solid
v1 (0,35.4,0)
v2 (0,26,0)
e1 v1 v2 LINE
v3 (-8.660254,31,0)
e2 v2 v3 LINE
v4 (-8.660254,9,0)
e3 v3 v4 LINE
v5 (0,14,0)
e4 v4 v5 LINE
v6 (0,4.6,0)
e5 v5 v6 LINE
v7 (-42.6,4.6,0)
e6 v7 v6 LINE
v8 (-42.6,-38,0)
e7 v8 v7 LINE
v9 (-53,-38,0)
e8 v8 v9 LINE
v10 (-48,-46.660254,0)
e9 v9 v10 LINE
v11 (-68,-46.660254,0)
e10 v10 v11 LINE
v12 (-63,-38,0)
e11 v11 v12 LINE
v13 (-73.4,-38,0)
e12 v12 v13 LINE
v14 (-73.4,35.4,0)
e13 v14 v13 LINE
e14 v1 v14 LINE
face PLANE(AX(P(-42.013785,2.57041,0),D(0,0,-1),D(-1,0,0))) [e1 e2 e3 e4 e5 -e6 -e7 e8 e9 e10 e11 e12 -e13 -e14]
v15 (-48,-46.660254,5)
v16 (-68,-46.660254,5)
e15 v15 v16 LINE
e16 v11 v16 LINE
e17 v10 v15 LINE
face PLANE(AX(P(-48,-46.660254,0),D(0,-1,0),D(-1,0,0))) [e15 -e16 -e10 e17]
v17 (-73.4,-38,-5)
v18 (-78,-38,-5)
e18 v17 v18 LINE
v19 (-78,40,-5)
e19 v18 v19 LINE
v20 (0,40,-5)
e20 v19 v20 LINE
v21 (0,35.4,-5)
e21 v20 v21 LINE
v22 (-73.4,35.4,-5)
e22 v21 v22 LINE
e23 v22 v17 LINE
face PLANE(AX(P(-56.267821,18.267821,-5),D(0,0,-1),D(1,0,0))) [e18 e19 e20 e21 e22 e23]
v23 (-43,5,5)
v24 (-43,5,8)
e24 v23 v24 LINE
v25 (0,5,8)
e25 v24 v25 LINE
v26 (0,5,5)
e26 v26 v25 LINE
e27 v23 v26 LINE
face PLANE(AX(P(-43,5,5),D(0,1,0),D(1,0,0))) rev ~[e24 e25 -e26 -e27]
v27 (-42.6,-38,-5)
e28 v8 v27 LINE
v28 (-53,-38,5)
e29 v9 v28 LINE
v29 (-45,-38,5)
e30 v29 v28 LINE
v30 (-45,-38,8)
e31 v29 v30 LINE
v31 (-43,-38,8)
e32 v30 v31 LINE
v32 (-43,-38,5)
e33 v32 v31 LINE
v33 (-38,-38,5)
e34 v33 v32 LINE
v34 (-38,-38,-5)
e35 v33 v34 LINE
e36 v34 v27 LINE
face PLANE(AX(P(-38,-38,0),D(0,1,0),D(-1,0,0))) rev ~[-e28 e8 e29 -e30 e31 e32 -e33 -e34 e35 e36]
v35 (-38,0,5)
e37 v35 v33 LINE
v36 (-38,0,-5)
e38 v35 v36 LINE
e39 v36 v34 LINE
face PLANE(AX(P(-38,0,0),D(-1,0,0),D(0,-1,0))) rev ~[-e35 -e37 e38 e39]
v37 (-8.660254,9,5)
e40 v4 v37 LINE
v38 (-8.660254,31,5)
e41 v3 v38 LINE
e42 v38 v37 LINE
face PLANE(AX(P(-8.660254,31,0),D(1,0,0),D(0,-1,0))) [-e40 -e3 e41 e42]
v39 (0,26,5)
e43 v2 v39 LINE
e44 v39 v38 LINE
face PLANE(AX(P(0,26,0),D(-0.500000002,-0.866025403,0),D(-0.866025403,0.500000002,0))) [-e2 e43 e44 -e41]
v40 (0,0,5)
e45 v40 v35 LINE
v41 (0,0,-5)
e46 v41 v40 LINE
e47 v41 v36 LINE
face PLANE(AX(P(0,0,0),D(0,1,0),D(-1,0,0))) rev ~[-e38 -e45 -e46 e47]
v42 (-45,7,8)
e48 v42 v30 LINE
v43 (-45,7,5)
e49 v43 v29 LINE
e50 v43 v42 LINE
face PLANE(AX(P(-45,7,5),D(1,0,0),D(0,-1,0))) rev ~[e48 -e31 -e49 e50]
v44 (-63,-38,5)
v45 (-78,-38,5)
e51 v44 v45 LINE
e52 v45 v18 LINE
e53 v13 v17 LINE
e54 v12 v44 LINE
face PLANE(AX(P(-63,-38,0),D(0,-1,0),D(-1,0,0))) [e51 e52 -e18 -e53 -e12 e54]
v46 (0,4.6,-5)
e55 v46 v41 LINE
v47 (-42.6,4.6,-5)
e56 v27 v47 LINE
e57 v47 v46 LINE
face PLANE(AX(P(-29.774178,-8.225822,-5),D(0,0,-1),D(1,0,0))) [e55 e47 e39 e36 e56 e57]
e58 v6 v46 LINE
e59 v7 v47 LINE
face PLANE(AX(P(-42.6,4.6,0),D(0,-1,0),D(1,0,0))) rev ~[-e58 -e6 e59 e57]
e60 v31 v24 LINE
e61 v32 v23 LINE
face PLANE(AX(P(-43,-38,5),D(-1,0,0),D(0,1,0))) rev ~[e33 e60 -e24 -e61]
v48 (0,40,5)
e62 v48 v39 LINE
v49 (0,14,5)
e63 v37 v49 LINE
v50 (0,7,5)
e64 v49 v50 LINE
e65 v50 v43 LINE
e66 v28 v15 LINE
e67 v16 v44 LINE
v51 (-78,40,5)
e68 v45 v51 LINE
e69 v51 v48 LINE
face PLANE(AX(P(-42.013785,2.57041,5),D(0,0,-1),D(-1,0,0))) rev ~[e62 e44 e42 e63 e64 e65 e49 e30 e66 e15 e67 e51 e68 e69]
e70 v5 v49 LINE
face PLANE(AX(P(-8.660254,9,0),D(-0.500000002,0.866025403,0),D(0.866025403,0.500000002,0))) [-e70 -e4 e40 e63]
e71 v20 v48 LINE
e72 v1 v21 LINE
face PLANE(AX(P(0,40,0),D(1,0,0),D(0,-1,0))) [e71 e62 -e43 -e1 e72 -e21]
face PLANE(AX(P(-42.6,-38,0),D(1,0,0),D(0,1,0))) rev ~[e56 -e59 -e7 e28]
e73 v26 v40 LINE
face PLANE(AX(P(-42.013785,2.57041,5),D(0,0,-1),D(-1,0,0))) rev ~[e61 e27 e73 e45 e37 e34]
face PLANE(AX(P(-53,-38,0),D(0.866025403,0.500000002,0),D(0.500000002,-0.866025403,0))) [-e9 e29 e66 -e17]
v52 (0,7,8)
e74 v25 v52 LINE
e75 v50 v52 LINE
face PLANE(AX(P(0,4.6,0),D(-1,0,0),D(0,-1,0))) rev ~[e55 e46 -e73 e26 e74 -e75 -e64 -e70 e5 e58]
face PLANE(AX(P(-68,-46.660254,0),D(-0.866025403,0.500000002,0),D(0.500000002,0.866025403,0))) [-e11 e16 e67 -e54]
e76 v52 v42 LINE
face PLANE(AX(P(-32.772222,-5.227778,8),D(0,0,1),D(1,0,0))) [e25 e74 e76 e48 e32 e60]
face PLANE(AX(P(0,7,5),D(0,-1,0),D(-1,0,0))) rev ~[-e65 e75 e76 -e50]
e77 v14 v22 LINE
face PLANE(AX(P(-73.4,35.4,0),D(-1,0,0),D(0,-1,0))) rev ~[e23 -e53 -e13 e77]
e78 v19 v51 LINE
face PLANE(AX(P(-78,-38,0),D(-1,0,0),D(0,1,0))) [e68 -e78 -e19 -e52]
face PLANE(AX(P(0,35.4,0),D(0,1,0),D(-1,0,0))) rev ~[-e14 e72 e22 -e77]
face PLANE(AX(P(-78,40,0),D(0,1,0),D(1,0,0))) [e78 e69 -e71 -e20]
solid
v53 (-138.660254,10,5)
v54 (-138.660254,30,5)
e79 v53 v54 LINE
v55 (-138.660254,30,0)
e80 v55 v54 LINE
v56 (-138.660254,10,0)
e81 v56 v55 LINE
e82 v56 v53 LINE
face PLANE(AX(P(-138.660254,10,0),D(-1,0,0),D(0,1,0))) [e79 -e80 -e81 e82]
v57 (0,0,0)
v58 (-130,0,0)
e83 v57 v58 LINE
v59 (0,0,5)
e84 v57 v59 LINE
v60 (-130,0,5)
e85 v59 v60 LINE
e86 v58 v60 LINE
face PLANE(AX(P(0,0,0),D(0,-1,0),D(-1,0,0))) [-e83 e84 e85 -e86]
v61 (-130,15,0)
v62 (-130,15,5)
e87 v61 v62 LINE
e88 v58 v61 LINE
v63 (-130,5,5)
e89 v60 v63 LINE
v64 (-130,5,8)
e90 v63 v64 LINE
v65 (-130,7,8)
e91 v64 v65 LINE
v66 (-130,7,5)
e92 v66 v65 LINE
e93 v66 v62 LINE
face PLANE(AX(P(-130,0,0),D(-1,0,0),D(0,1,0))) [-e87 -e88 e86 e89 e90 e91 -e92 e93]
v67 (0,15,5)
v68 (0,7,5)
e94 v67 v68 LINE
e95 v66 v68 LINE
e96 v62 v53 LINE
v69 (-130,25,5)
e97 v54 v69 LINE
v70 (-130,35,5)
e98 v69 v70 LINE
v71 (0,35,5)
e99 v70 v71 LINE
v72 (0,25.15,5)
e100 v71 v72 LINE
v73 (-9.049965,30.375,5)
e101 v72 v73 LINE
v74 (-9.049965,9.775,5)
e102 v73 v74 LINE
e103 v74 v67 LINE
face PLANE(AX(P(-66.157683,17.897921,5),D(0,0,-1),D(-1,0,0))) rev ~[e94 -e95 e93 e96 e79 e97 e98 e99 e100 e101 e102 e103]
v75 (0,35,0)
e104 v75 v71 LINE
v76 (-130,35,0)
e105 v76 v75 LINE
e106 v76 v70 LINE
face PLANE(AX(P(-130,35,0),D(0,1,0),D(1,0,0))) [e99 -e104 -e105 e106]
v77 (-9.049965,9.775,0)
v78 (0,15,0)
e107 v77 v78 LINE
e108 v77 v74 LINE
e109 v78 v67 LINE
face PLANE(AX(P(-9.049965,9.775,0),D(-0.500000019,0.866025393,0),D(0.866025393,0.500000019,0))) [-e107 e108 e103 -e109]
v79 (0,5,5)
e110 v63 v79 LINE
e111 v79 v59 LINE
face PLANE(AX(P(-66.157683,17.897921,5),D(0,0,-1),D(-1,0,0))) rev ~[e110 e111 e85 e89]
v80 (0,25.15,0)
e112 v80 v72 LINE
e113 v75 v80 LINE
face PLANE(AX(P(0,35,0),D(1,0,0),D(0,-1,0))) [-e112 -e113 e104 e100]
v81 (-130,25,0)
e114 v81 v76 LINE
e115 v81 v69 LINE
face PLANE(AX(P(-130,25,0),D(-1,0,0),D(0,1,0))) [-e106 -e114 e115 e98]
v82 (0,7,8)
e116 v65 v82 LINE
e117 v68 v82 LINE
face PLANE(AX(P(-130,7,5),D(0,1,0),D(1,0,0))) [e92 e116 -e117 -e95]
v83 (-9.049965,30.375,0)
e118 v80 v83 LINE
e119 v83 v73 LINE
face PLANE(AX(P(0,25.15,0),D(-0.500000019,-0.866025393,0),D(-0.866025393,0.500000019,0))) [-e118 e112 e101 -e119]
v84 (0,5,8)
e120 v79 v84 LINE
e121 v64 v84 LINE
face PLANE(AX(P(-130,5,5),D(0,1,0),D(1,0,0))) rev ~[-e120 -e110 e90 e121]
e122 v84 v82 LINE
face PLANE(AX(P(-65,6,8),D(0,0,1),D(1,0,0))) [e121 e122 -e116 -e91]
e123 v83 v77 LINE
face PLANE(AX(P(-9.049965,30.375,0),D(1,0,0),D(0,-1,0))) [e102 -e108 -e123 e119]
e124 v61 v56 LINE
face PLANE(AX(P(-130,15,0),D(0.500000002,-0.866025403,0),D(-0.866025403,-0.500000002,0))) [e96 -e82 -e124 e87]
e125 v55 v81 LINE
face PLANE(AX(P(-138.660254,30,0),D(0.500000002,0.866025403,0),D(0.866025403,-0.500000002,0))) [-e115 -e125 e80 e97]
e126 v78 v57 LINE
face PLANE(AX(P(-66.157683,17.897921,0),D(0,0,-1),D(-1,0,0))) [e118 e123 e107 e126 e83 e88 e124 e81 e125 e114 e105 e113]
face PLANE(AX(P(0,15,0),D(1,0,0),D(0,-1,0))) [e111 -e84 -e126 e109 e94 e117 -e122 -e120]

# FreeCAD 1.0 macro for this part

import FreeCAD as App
import Part
import Sketcher
Q = App.Units.Quantity

doc = App.newDocument("Part")
body = doc.addObject("PartDesign::Body", "Body")

# Sketch on XY plane
sketch1 = doc.addObject("Sketcher::SketchObject", "Sketch")
body.addObject(sketch1)
sketch1.AttachmentSupport = (doc.XY_Plane, [""])
sketch1.MapMode = "FlatFace"
sketch1.addGeometry([
    Part.LineSegment(App.Vector(0, 26, 0), App.Vector(0, 40, 0)),  # 0
    Part.LineSegment(App.Vector(0, 40, 0), App.Vector(-78, 40, 0)),  # 1
    Part.LineSegment(App.Vector(-78, 40, 0), App.Vector(-78, -38, 0)),  # 2
    Part.LineSegment(App.Vector(-78, -38, 0), App.Vector(-63, -38, 0)),  # 3
    Part.LineSegment(App.Vector(-63, -38, 0), App.Vector(-68, -47, 0)),  # 4
    Part.LineSegment(App.Vector(-68, -47, 0), App.Vector(-48, -47, 0)),  # 5
    Part.LineSegment(App.Vector(-48, -47, 0), App.Vector(-53, -38, 0)),  # 6
    Part.LineSegment(App.Vector(-53, -38, 0), App.Vector(-38, -38, 0)),  # 7
    Part.LineSegment(App.Vector(-38, -38, 0), App.Vector(-38, 0, 0)),  # 8
    Part.LineSegment(App.Vector(-38, 0, 0), App.Vector(0, 0, 0)),  # 9
    Part.LineSegment(App.Vector(0, 0, 0), App.Vector(0, 14, 0)),  # 10
    Part.LineSegment(App.Vector(0, 14, 0), App.Vector(-9, 9, 0)),  # 11
    Part.LineSegment(App.Vector(-9, 9, 0), App.Vector(-9, 31, 0)),  # 12
    Part.LineSegment(App.Vector(-9, 31, 0), App.Vector(0, 26, 0)),  # 13
], False)
sketch1.addConstraint([
    Sketcher.Constraint("Coincident", 0, 2, 1, 1),
    Sketcher.Constraint("Coincident", 1, 2, 2, 1),
    Sketcher.Constraint("Coincident", 2, 2, 3, 1),
    Sketcher.Constraint("Coincident", 3, 2, 4, 1),
    Sketcher.Constraint("Coincident", 4, 2, 5, 1),
    Sketcher.Constraint("Coincident", 5, 2, 6, 1),
    Sketcher.Constraint("Coincident", 6, 2, 7, 1),
    Sketcher.Constraint("Coincident", 7, 2, 8, 1),
    Sketcher.Constraint("Coincident", 8, 2, 9, 1),
    Sketcher.Constraint("Coincident", 9, 2, 10, 1),
    Sketcher.Constraint("Coincident", 10, 2, 11, 1),
    Sketcher.Constraint("Coincident", 11, 2, 12, 1),
    Sketcher.Constraint("Coincident", 12, 2, 13, 1),
    Sketcher.Constraint("Coincident", 13, 2, 0, 1),
    Sketcher.Constraint("Vertical", 0),
    Sketcher.Constraint("Horizontal", 1),
    Sketcher.Constraint("Vertical", 2),
    Sketcher.Constraint("Horizontal", 3),
    Sketcher.Constraint("Horizontal", 5),
    Sketcher.Constraint("Horizontal", 7),
    Sketcher.Constraint("Vertical", 8),
    Sketcher.Constraint("Horizontal", 9),
    Sketcher.Constraint("Vertical", 10),
    Sketcher.Constraint("Vertical", 12),
    Sketcher.Constraint("Coincident", 9, 2, -1, 1),
    Sketcher.Constraint("PointOnObject", 0, 2, -2),
    Sketcher.Constraint("Perpendicular", 6, 11),
    Sketcher.Constraint("Perpendicular", 4, 13),
    Sketcher.Constraint("Horizontal", 3, 2, 6, 2),
    Sketcher.Constraint("Equal", 3, 7),
    Sketcher.Constraint("Equal", 1, 2),
    Sketcher.Constraint("Equal", 9, 8),
    Sketcher.Constraint("Equal", 0, 10),
    Sketcher.Constraint("Equal", 4, 6),
    Sketcher.Constraint("Equal", 6, 11),
    Sketcher.Constraint("DistanceX", 1, 2, 1, 1, 78.0),
    Sketcher.Constraint("DistanceX", 3, 1, 3, 2, 15.0),
    Sketcher.Constraint("DistanceX", 5, 1, 5, 2, 20.0),
    Sketcher.Constraint("DistanceX", 9, 1, 9, 2, 38.0),
    Sketcher.Constraint("DistanceY", 0, 1, 0, 2, 14.0),
    Sketcher.Constraint("Angle", 4, Q("-120 deg")),
])
pad1 = doc.addObject("PartDesign::Pad", "Pad")
body.addObject(pad1)
pad1.Profile = sketch1
pad1.Length = 5

# Sketch on XY plane
sketch2 = doc.addObject("Sketcher::SketchObject", "Sketch001")
body.addObject(sketch2)
sketch2.AttachmentSupport = (doc.XY_Plane, [""])
sketch2.MapMode = "FlatFace"
sketch2.AttachmentOffset = App.Placement(App.Vector(0, 0, 5), App.Rotation())
sketch2.addGeometry([
    Part.LineSegment(App.Vector(0, 7, 0), App.Vector(-45, 7, 0)),  # 0
    Part.LineSegment(App.Vector(-45, 7, 0), App.Vector(-45, -38, 0)),  # 1
    Part.LineSegment(App.Vector(-45, -38, 0), App.Vector(-43, -38, 0)),  # 2
    Part.LineSegment(App.Vector(-43, -38, 0), App.Vector(-43, 5, 0)),  # 3
    Part.LineSegment(App.Vector(-43, 5, 0), App.Vector(0, 5, 0)),  # 4
    Part.LineSegment(App.Vector(0, 5, 0), App.Vector(0, 7, 0)),  # 5
], False)
sketch2.addConstraint([
    Sketcher.Constraint("Coincident", 0, 2, 1, 1),
    Sketcher.Constraint("Coincident", 1, 2, 2, 1),
    Sketcher.Constraint("Coincident", 2, 2, 3, 1),
    Sketcher.Constraint("Coincident", 3, 2, 4, 1),
    Sketcher.Constraint("Coincident", 4, 2, 5, 1),
    Sketcher.Constraint("Coincident", 5, 2, 0, 1),
    Sketcher.Constraint("Horizontal", 0),
    Sketcher.Constraint("Vertical", 1),
    Sketcher.Constraint("Horizontal", 2),
    Sketcher.Constraint("Vertical", 3),
    Sketcher.Constraint("Horizontal", 4),
    Sketcher.Constraint("Vertical", 5),
    Sketcher.Constraint("PointOnObject", 4, 2, -2),
    Sketcher.Constraint("Equal", 0, 1),
    Sketcher.Constraint("Equal", 4, 3),
    Sketcher.Constraint("DistanceX", 0, 2, 0, 1, 45.0),
    Sketcher.Constraint("DistanceX", 2, 1, 2, 2, 2.0),
    Sketcher.Constraint("DistanceY", -1, 1, 0, 2, 7.0),
])
pad2 = doc.addObject("PartDesign::Pad", "Pad001")
body.addObject(pad2)
pad2.Profile = sketch2
pad2.Length = 3

# Sketch on XY plane
sketch3 = doc.addObject("Sketcher::SketchObject", "Sketch002")
body.addObject(sketch3)
sketch3.AttachmentSupport = (doc.XY_Plane, [""])
sketch3.MapMode = "FlatFace"
sketch3.addGeometry([
    Part.LineSegment(App.Vector(0, 0, 0), App.Vector(-38, 0, 0)),  # 0
    Part.LineSegment(App.Vector(-38, 0, 0), App.Vector(-38, -38, 0)),  # 1
    Part.LineSegment(App.Vector(-38, -38, 0), App.Vector(-42.6, -38, 0)),  # 2
    Part.LineSegment(App.Vector(-42.6, -38, 0), App.Vector(-42.6, 4.6, 0)),  # 3
    Part.LineSegment(App.Vector(-42.6, 4.6, 0), App.Vector(0, 4.6, 0)),  # 4
    Part.LineSegment(App.Vector(0, 4.6, 0), App.Vector(0, 0, 0)),  # 5
    Part.LineSegment(App.Vector(0, 40, 0), App.Vector(0, 35.4, 0)),  # 6
    Part.LineSegment(App.Vector(0, 35.4, 0), App.Vector(-73.4, 35.4, 0)),  # 7
    Part.LineSegment(App.Vector(-73.4, 35.4, 0), App.Vector(-73.4, -38, 0)),  # 8
    Part.LineSegment(App.Vector(-73.4, -38, 0), App.Vector(-78, -38, 0)),  # 9
    Part.LineSegment(App.Vector(-78, -38, 0), App.Vector(-78, 40, 0)),  # 10
    Part.LineSegment(App.Vector(-78, 40, 0), App.Vector(0, 40, 0)),  # 11
], False)
sketch3.addConstraint([
    Sketcher.Constraint("Coincident", 0, 2, 1, 1),
    Sketcher.Constraint("Coincident", 1, 2, 2, 1),
    Sketcher.Constraint("Coincident", 2, 2, 3, 1),
    Sketcher.Constraint("Coincident", 3, 2, 4, 1),
    Sketcher.Constraint("Coincident", 4, 2, 5, 1),
    Sketcher.Constraint("Coincident", 5, 2, 0, 1),
    Sketcher.Constraint("Coincident", 6, 2, 7, 1),
    Sketcher.Constraint("Coincident", 7, 2, 8, 1),
    Sketcher.Constraint("Coincident", 8, 2, 9, 1),
    Sketcher.Constraint("Coincident", 9, 2, 10, 1),
    Sketcher.Constraint("Coincident", 10, 2, 11, 1),
    Sketcher.Constraint("Coincident", 11, 2, 6, 1),
    Sketcher.Constraint("Horizontal", 0),
    Sketcher.Constraint("Vertical", 1),
    Sketcher.Constraint("Horizontal", 2),
    Sketcher.Constraint("Vertical", 3),
    Sketcher.Constraint("Horizontal", 4),
    Sketcher.Constraint("Vertical", 5),
    Sketcher.Constraint("Vertical", 6),
    Sketcher.Constraint("Horizontal", 7),
    Sketcher.Constraint("Vertical", 8),
    Sketcher.Constraint("Horizontal", 9),
    Sketcher.Constraint("Vertical", 10),
    Sketcher.Constraint("Horizontal", 11),
    Sketcher.Constraint("Coincident", 5, 2, -1, 1),
    Sketcher.Constraint("PointOnObject", 6, 2, -2),
    Sketcher.Constraint("Horizontal", 2, 2, 8, 2),
    Sketcher.Constraint("Equal", 2, 9),
    Sketcher.Constraint("Equal", 0, 1),
    Sketcher.Constraint("Equal", 4, 3),
    Sketcher.Constraint("Equal", 5, 6),
    Sketcher.Constraint("Equal", 7, 8),
    Sketcher.Constraint("DistanceX", 0, 2, 0, 1, 38.0),
    Sketcher.Constraint("DistanceX", 11, 1, 11, 2, 78.0),
    Sketcher.Constraint("DistanceX", 2, 2, 2, 1, 4.6),
])
pad3 = doc.addObject("PartDesign::Pad", "Pad002")
body.addObject(pad3)
pad3.Profile = sketch3
pad3.Length = 5
pad3.Reversed = True
body2 = doc.addObject("PartDesign::Body", "Body001")

# Sketch on XY plane
sketch4 = doc.addObject("Sketcher::SketchObject", "Sketch003")
body2.addObject(sketch4)
sketch4.AttachmentSupport = (doc.getObject("XY_Plane001"), [""])
sketch4.MapMode = "FlatFace"
sketch4.addGeometry([
    Part.LineSegment(App.Vector(-130, 0, 0), App.Vector(0, 0, 0)),  # 0
    Part.LineSegment(App.Vector(0, 0, 0), App.Vector(0, 15, 0)),  # 1
    Part.LineSegment(App.Vector(0, 15, 0), App.Vector(-9, 10, 0)),  # 2
    Part.LineSegment(App.Vector(-9, 10, 0), App.Vector(-9, 30, 0)),  # 3
    Part.LineSegment(App.Vector(-9, 30, 0), App.Vector(0, 25, 0)),  # 4
    Part.LineSegment(App.Vector(0, 25, 0), App.Vector(0, 35, 0)),  # 5
    Part.LineSegment(App.Vector(0, 35, 0), App.Vector(-130, 35, 0)),  # 6
    Part.LineSegment(App.Vector(-130, 35, 0), App.Vector(-130, 25, 0)),  # 7
    Part.LineSegment(App.Vector(-130, 25, 0), App.Vector(-139, 30, 0)),  # 8
    Part.LineSegment(App.Vector(-139, 30, 0), App.Vector(-139, 10, 0)),  # 9
    Part.LineSegment(App.Vector(-139, 10, 0), App.Vector(-130, 15, 0)),  # 10
    Part.LineSegment(App.Vector(-130, 15, 0), App.Vector(-130, 0, 0)),  # 11
], False)
sketch4.addConstraint([
    Sketcher.Constraint("Coincident", 0, 2, 1, 1),
    Sketcher.Constraint("Coincident", 1, 2, 2, 1),
    Sketcher.Constraint("Coincident", 2, 2, 3, 1),
    Sketcher.Constraint("Coincident", 3, 2, 4, 1),
    Sketcher.Constraint("Coincident", 4, 2, 5, 1),
    Sketcher.Constraint("Coincident", 5, 2, 6, 1),
    Sketcher.Constraint("Coincident", 6, 2, 7, 1),
    Sketcher.Constraint("Coincident", 7, 2, 8, 1),
    Sketcher.Constraint("Coincident", 8, 2, 9, 1),
    Sketcher.Constraint("Coincident", 9, 2, 10, 1),
    Sketcher.Constraint("Coincident", 10, 2, 11, 1),
    Sketcher.Constraint("Coincident", 11, 2, 0, 1),
    Sketcher.Constraint("Horizontal", 0),
    Sketcher.Constraint("Vertical", 1),
    Sketcher.Constraint("Vertical", 3),
    Sketcher.Constraint("Vertical", 5),
    Sketcher.Constraint("Horizontal", 6),
    Sketcher.Constraint("Vertical", 7),
    Sketcher.Constraint("Vertical", 9),
    Sketcher.Constraint("Vertical", 11),
    Sketcher.Constraint("Coincident", 0, 2, -1, 1),
    Sketcher.Constraint("PointOnObject", 4, 2, -2),
    Sketcher.Constraint("Parallel", 4, 8),
    Sketcher.Constraint("Parallel", 2, 10),
    Sketcher.Constraint("Horizontal", 1, 2, 10, 2),
    Sketcher.Constraint("Vertical", 7, 2, 10, 2),
    Sketcher.Constraint("Equal", 2, 4),
    Sketcher.Constraint("DistanceX", 0, 1, 0, 2, 130.0),
    Sketcher.Constraint("DistanceY", 1, 1, 1, 2, 15.0),
    Sketcher.Constraint("DistanceY", 7, 2, 7, 1, 10.0),
    Sketcher.Constraint("DistanceY", 9, 2, 9, 1, 20.0),
    Sketcher.Constraint("Angle", 2, Q("-149.999999 deg")),
    Sketcher.Constraint("Distance", 8, 10.0),
    Sketcher.Constraint("DistanceY", 3, 1, 3, 2, 20.6),
    Sketcher.Constraint("DistanceY", 5, 1, 5, 2, 9.85),
])
pad4 = doc.addObject("PartDesign::Pad", "Pad003")
body2.addObject(pad4)
pad4.Profile = sketch4
pad4.Length = 5

# Sketch on XY plane
sketch5 = doc.addObject("Sketcher::SketchObject", "Sketch004")
body2.addObject(sketch5)
sketch5.AttachmentSupport = (doc.getObject("XY_Plane001"), [""])
sketch5.MapMode = "FlatFace"
sketch5.AttachmentOffset = App.Placement(App.Vector(0, 0, 5), App.Rotation())
sketch5.addGeometry([
    Part.LineSegment(App.Vector(-130, 7, 0), App.Vector(-130, 5, 0)),
    Part.LineSegment(App.Vector(-130, 5, 0), App.Vector(0, 5, 0)),
    Part.LineSegment(App.Vector(0, 5, 0), App.Vector(0, 7, 0)),
    Part.LineSegment(App.Vector(0, 7, 0), App.Vector(-130, 7, 0)),
], False)
sketch5.addConstraint([
    Sketcher.Constraint("Coincident", 0, 2, 1, 1),
    Sketcher.Constraint("Coincident", 1, 2, 2, 1),
    Sketcher.Constraint("Coincident", 2, 2, 3, 1),
    Sketcher.Constraint("Coincident", 3, 2, 0, 1),
    Sketcher.Constraint("Vertical", 0),
    Sketcher.Constraint("Horizontal", 1),
    Sketcher.Constraint("Vertical", 2),
    Sketcher.Constraint("Horizontal", 3),
    Sketcher.Constraint("PointOnObject", 1, 2, -2),
    Sketcher.Constraint("DistanceX", 1, 1, 1, 2, 130.0),
    Sketcher.Constraint("DistanceY", 0, 2, 0, 1, 2.0),
    Sketcher.Constraint("DistanceY", -1, 1, 0, 2, 5.0),
])
pad5 = doc.addObject("PartDesign::Pad", "Pad004")
body2.addObject(pad5)
pad5.Profile = sketch5
pad5.Length = 3

doc.recompute()
